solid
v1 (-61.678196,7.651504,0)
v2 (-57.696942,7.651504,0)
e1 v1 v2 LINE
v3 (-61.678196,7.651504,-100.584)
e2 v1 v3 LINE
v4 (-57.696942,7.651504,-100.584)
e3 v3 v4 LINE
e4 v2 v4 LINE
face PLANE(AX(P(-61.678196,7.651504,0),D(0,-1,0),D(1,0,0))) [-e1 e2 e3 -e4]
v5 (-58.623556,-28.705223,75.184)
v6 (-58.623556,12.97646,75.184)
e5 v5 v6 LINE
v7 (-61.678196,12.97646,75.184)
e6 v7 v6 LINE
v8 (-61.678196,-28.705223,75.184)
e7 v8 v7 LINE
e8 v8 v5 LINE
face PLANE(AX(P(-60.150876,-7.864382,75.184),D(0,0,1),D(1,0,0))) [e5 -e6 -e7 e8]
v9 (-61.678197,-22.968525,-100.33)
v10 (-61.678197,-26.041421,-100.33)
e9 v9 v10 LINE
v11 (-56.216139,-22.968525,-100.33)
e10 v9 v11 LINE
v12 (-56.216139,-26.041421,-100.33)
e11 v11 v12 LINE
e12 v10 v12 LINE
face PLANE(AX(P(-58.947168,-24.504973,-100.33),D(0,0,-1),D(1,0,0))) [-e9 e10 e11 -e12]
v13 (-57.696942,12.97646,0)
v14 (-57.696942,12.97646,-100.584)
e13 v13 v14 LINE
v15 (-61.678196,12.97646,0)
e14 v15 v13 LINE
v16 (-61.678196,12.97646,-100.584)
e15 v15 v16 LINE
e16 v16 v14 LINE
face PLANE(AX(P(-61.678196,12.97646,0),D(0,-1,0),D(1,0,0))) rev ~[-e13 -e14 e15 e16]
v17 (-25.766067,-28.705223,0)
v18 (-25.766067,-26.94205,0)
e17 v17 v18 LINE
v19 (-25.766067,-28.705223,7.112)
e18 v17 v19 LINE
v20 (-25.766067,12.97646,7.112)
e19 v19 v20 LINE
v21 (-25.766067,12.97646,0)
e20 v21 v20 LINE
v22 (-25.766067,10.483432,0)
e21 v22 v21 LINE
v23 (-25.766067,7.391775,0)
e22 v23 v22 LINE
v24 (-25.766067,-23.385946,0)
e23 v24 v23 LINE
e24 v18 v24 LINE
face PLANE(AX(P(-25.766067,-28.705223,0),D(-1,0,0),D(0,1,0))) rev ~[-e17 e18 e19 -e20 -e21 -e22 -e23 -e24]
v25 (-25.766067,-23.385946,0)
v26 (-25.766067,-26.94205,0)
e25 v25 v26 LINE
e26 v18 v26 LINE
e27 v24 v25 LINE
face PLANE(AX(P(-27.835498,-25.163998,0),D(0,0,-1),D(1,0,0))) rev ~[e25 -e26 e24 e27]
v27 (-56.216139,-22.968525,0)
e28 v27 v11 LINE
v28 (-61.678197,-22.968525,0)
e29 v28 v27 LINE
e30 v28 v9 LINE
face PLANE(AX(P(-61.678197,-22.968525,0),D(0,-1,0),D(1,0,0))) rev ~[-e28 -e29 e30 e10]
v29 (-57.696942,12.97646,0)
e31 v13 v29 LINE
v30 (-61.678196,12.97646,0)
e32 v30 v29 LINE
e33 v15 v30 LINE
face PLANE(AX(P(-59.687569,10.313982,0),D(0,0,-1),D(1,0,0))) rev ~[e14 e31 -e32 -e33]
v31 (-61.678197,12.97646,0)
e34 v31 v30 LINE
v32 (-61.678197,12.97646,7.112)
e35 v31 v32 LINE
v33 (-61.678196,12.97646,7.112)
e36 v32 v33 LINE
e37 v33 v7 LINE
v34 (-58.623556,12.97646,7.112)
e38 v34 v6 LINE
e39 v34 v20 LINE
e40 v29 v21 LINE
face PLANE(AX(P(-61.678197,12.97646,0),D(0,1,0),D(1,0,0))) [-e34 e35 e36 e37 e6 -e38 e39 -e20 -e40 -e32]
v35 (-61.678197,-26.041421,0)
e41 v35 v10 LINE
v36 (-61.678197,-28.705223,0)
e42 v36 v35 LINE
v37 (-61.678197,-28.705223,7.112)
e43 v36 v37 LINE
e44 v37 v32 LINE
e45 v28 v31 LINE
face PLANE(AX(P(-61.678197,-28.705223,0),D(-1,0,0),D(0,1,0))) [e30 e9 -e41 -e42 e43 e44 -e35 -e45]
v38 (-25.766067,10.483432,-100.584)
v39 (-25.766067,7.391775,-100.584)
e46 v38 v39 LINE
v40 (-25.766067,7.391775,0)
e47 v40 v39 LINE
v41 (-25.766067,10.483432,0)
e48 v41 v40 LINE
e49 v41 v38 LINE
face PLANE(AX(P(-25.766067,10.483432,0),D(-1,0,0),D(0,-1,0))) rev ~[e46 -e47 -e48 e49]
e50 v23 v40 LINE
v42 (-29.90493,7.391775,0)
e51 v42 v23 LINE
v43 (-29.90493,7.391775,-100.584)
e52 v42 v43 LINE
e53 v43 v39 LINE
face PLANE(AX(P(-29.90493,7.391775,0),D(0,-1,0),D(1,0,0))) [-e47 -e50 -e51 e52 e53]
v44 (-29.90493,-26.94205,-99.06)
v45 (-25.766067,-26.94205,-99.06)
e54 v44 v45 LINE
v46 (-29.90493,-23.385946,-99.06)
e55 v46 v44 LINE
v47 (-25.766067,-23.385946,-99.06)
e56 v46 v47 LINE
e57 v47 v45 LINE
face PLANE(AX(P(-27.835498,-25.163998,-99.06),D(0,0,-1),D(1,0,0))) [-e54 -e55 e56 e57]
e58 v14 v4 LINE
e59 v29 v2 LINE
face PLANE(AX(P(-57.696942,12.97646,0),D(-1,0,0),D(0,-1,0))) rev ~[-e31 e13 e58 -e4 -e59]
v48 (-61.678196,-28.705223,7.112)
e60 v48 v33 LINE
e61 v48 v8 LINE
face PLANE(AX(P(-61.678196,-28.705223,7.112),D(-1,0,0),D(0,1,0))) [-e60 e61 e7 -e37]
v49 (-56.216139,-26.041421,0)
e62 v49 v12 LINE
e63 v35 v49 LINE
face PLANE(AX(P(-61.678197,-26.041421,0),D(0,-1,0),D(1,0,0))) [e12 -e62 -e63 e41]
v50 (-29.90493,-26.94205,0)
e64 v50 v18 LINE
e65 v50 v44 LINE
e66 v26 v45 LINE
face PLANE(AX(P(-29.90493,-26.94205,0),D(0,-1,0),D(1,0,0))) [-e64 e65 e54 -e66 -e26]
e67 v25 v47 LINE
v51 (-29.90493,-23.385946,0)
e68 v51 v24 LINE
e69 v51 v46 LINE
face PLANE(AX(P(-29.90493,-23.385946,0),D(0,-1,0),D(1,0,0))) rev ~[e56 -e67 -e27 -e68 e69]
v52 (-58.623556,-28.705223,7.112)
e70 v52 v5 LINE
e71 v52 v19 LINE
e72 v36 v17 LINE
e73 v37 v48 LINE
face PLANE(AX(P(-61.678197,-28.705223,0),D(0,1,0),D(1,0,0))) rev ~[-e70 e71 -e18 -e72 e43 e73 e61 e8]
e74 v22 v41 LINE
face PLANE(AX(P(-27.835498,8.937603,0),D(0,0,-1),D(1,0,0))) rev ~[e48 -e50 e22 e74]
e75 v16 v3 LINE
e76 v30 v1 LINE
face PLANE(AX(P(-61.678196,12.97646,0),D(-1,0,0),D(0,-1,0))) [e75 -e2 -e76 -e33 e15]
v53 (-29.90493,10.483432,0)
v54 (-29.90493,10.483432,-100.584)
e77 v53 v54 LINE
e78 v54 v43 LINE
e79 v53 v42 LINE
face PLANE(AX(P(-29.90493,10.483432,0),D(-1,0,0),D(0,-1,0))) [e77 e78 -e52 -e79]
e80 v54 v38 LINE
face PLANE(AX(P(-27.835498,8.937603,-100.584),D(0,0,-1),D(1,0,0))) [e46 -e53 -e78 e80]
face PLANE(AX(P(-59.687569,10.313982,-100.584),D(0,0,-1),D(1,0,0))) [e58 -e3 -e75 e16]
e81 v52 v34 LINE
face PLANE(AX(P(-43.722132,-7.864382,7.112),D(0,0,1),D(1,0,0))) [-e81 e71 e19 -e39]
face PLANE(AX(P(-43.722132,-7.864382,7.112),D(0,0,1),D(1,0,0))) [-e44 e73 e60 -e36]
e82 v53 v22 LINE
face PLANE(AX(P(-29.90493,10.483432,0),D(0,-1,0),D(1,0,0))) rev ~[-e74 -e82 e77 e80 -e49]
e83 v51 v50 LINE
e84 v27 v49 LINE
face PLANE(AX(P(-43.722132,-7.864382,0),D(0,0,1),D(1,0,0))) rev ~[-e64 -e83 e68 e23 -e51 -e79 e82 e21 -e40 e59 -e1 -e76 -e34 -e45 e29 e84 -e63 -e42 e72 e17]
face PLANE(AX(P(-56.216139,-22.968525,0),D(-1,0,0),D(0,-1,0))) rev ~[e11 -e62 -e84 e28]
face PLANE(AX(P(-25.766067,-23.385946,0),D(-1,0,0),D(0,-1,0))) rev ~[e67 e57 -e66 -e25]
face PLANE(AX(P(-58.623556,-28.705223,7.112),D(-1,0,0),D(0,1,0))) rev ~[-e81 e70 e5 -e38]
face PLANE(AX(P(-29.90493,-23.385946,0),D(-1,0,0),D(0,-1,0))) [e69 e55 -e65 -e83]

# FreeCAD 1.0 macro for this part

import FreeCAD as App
import Part
import Sketcher

V = App.Vector
Q = App.Units.Quantity

doc = App.newDocument("Part")
body = doc.addObject("PartDesign::Body", "Body")

sketch1 = body.newObject("Sketcher::SketchObject", "Sketch")
sketch1.AttachmentSupport = (doc.getObject("XY_Plane"), [""])
sketch1.MapMode = "FlatFace"
sketch1.addGeometry(Part.LineSegment(V(-62, 13, 0), V(-62, -29, 0)), False)
sketch1.addGeometry(Part.LineSegment(V(-62, -29, 0), V(-26, -29, 0)), False)
sketch1.addGeometry(Part.LineSegment(V(-26, -29, 0), V(-26, 13, 0)), False)
sketch1.addGeometry(Part.LineSegment(V(-26, 13, 0), V(-62, 13, 0)), False)
sketch1.addConstraint(Sketcher.Constraint("Coincident", 0, 2, 1, 1))
sketch1.addConstraint(Sketcher.Constraint("Coincident", 1, 2, 2, 1))
sketch1.addConstraint(Sketcher.Constraint("Coincident", 2, 2, 3, 1))
sketch1.addConstraint(Sketcher.Constraint("Coincident", 3, 2, 0, 1))
sketch1.addConstraint(Sketcher.Constraint("Vertical", 0))
sketch1.addConstraint(Sketcher.Constraint("Horizontal", 1))
sketch1.addConstraint(Sketcher.Constraint("Vertical", 2))
sketch1.addConstraint(Sketcher.Constraint("Horizontal", 3))
sketch1.addConstraint(Sketcher.Constraint("DistanceX", 1, 1, 1, 2, Q("35.91213 mm")))
sketch1.addConstraint(Sketcher.Constraint("DistanceY", 0, 2, 0, 1, Q("41.681683 mm")))
sketch1.addConstraint(Sketcher.Constraint("DistanceY", -1, 1, 2, 2, Q("12.97646 mm")))
sketch1.addConstraint(Sketcher.Constraint("DistanceX", 0, 2, -1, 1, Q("61.678197 mm")))
pad1 = body.newObject("PartDesign::Pad", "Pad")
pad1.Profile = sketch1
pad1.Length = Q("0.28 in")

sketch2 = body.newObject("Sketcher::SketchObject", "Sketch001")
sketch2.AttachmentSupport = (doc.getObject("XY_Plane"), [""])
sketch2.MapMode = "FlatFace"
sketch2.addGeometry(Part.LineSegment(V(-29.9, -26.9, 0), V(-29.9, -23.4, 0)), False)
sketch2.addGeometry(Part.LineSegment(V(-29.9, -23.4, 0), V(-25.8, -23.4, 0)), False)
sketch2.addGeometry(Part.LineSegment(V(-25.8, -23.4, 0), V(-25.8, -26.9, 0)), False)
sketch2.addGeometry(Part.LineSegment(V(-25.8, -26.9, 0), V(-29.9, -26.9, 0)), False)
sketch2.addConstraint(Sketcher.Constraint("Coincident", 0, 2, 1, 1))
sketch2.addConstraint(Sketcher.Constraint("Coincident", 1, 2, 2, 1))
sketch2.addConstraint(Sketcher.Constraint("Coincident", 2, 2, 3, 1))
sketch2.addConstraint(Sketcher.Constraint("Coincident", 3, 2, 0, 1))
sketch2.addConstraint(Sketcher.Constraint("Vertical", 0))
sketch2.addConstraint(Sketcher.Constraint("Horizontal", 1))
sketch2.addConstraint(Sketcher.Constraint("Vertical", 2))
sketch2.addConstraint(Sketcher.Constraint("Horizontal", 3))
sketch2.addConstraint(Sketcher.Constraint("DistanceX", 1, 1, 1, 2, Q("4.138863 mm")))
sketch2.addConstraint(Sketcher.Constraint("DistanceY", 0, 1, 0, 2, Q("3.556104 mm")))
sketch2.addConstraint(Sketcher.Constraint("DistanceX", 0, 2, -1, 1, Q("29.90493 mm")))
sketch2.addConstraint(Sketcher.Constraint("DistanceY", 2, 2, -1, 1, Q("26.94205 mm")))
pad2 = body.newObject("PartDesign::Pad", "Pad001")
pad2.Profile = sketch2
pad2.Length = Q("3.9 in")
pad2.Reversed = True

sketch3 = body.newObject("Sketcher::SketchObject", "Sketch002")
sketch3.AttachmentSupport = (doc.getObject("XY_Plane"), [""])
sketch3.MapMode = "FlatFace"
sketch3.addGeometry(Part.LineSegment(V(-29.9, 7.4, 0), V(-29.9, 10.5, 0)), False)
sketch3.addGeometry(Part.LineSegment(V(-29.9, 10.5, 0), V(-25.8, 10.5, 0)), False)
sketch3.addGeometry(Part.LineSegment(V(-25.8, 10.5, 0), V(-25.8, 7.4, 0)), False)
sketch3.addGeometry(Part.LineSegment(V(-25.8, 7.4, 0), V(-29.9, 7.4, 0)), False)
sketch3.addConstraint(Sketcher.Constraint("Coincident", 0, 2, 1, 1))
sketch3.addConstraint(Sketcher.Constraint("Coincident", 1, 2, 2, 1))
sketch3.addConstraint(Sketcher.Constraint("Coincident", 2, 2, 3, 1))
sketch3.addConstraint(Sketcher.Constraint("Coincident", 3, 2, 0, 1))
sketch3.addConstraint(Sketcher.Constraint("Vertical", 0))
sketch3.addConstraint(Sketcher.Constraint("Horizontal", 1))
sketch3.addConstraint(Sketcher.Constraint("Vertical", 2))
sketch3.addConstraint(Sketcher.Constraint("Horizontal", 3))
sketch3.addConstraint(Sketcher.Constraint("DistanceX", 1, 1, 1, 2, Q("4.138863 mm")))
sketch3.addConstraint(Sketcher.Constraint("DistanceY", 0, 1, 0, 2, Q("3.091657 mm")))
sketch3.addConstraint(Sketcher.Constraint("DistanceX", 0, 2, -1, 1, Q("29.90493 mm")))
sketch3.addConstraint(Sketcher.Constraint("DistanceY", -1, 1, 0, 2, Q("10.483432 mm")))
pad3 = body.newObject("PartDesign::Pad", "Pad002")
pad3.Profile = sketch3
pad3.Length = Q("3.96 in")
pad3.Reversed = True

sketch4 = body.newObject("Sketcher::SketchObject", "Sketch003")
sketch4.AttachmentSupport = (doc.getObject("XY_Plane"), [""])
sketch4.MapMode = "FlatFace"
sketch4.addGeometry(Part.LineSegment(V(-61.7, 7.7, 0), V(-61.7, 13, 0)), False)
sketch4.addGeometry(Part.LineSegment(V(-61.7, 13, 0), V(-57.7, 13, 0)), False)
sketch4.addGeometry(Part.LineSegment(V(-57.7, 13, 0), V(-57.7, 7.7, 0)), False)
sketch4.addGeometry(Part.LineSegment(V(-57.7, 7.7, 0), V(-61.7, 7.7, 0)), False)
sketch4.addConstraint(Sketcher.Constraint("Coincident", 0, 2, 1, 1))
sketch4.addConstraint(Sketcher.Constraint("Coincident", 1, 2, 2, 1))
sketch4.addConstraint(Sketcher.Constraint("Coincident", 2, 2, 3, 1))
sketch4.addConstraint(Sketcher.Constraint("Coincident", 3, 2, 0, 1))
sketch4.addConstraint(Sketcher.Constraint("Vertical", 0))
sketch4.addConstraint(Sketcher.Constraint("Horizontal", 1))
sketch4.addConstraint(Sketcher.Constraint("Vertical", 2))
sketch4.addConstraint(Sketcher.Constraint("Horizontal", 3))
sketch4.addConstraint(Sketcher.Constraint("DistanceX", 1, 1, 1, 2, Q("3.981255 mm")))
sketch4.addConstraint(Sketcher.Constraint("DistanceY", 0, 1, 0, 2, Q("5.324956 mm")))
sketch4.addConstraint(Sketcher.Constraint("DistanceY", -1, 1, 0, 2, Q("12.97646 mm")))
sketch4.addConstraint(Sketcher.Constraint("DistanceX", 1, 2, -1, 1, Q("57.696942 mm")))
pad4 = body.newObject("PartDesign::Pad", "Pad003")
pad4.Profile = sketch4
pad4.Length = Q("3.96 in")
pad4.Reversed = True

sketch5 = body.newObject("Sketcher::SketchObject", "Sketch004")
sketch5.AttachmentSupport = (doc.getObject("XY_Plane"), [""])
sketch5.MapMode = "FlatFace"
sketch5.addGeometry(Part.LineSegment(V(-61.7, -26, 0), V(-61.7, -23, 0)), False)
sketch5.addGeometry(Part.LineSegment(V(-61.7, -23, 0), V(-56.2, -23, 0)), False)
sketch5.addGeometry(Part.LineSegment(V(-56.2, -23, 0), V(-56.2, -26, 0)), False)
sketch5.addGeometry(Part.LineSegment(V(-56.2, -26, 0), V(-61.7, -26, 0)), False)
sketch5.addConstraint(Sketcher.Constraint("Coincident", 0, 2, 1, 1))
sketch5.addConstraint(Sketcher.Constraint("Coincident", 1, 2, 2, 1))
sketch5.addConstraint(Sketcher.Constraint("Coincident", 2, 2, 3, 1))
sketch5.addConstraint(Sketcher.Constraint("Coincident", 3, 2, 0, 1))
sketch5.addConstraint(Sketcher.Constraint("Vertical", 0))
sketch5.addConstraint(Sketcher.Constraint("Horizontal", 1))
sketch5.addConstraint(Sketcher.Constraint("Vertical", 2))
sketch5.addConstraint(Sketcher.Constraint("Horizontal", 3))
sketch5.addConstraint(Sketcher.Constraint("DistanceX", 1, 1, 1, 2, Q("5.462058 mm")))
sketch5.addConstraint(Sketcher.Constraint("DistanceY", 0, 1, 0, 2, Q("3.072897 mm")))
sketch5.addConstraint(Sketcher.Constraint("DistanceX", 1, 2, -1, 1, Q("56.216139 mm")))
sketch5.addConstraint(Sketcher.Constraint("DistanceY", 2, 2, -1, 1, Q("26.041421 mm")))
pad5 = body.newObject("PartDesign::Pad", "Pad004")
pad5.Profile = sketch5
pad5.Length = Q("3.95 in")
pad5.Reversed = True

sketch6 = body.newObject("Sketcher::SketchObject", "Sketch005")
sketch6.AttachmentSupport = (doc.getObject("XY_Plane"), [""])
sketch6.MapMode = "FlatFace"
sketch6.AttachmentOffset = App.Placement(V(0, 0, 0.28 * 25.4), App.Rotation())
sketch6.addGeometry(Part.LineSegment(V(-61.7, 13, 0), V(-61.7, -28.7, 0)), False)
sketch6.addGeometry(Part.LineSegment(V(-61.7, -28.7, 0), V(-58.6, -28.7, 0)), False)
sketch6.addGeometry(Part.LineSegment(V(-58.6, -28.7, 0), V(-58.6, 13, 0)), False)
sketch6.addGeometry(Part.LineSegment(V(-58.6, 13, 0), V(-61.7, 13, 0)), False)
sketch6.addConstraint(Sketcher.Constraint("Coincident", 0, 2, 1, 1))
sketch6.addConstraint(Sketcher.Constraint("Coincident", 1, 2, 2, 1))
sketch6.addConstraint(Sketcher.Constraint("Coincident", 2, 2, 3, 1))
sketch6.addConstraint(Sketcher.Constraint("Coincident", 3, 2, 0, 1))
sketch6.addConstraint(Sketcher.Constraint("Vertical", 0))
sketch6.addConstraint(Sketcher.Constraint("Horizontal", 1))
sketch6.addConstraint(Sketcher.Constraint("Vertical", 2))
sketch6.addConstraint(Sketcher.Constraint("Horizontal", 3))
sketch6.addConstraint(Sketcher.Constraint("DistanceX", 1, 1, 1, 2, Q("3.054641 mm")))
sketch6.addConstraint(Sketcher.Constraint("DistanceY", 0, 2, 0, 1, Q("41.681683 mm")))
sketch6.addConstraint(Sketcher.Constraint("DistanceY", -1, 1, 2, 2, Q("12.97646 mm")))
sketch6.addConstraint(Sketcher.Constraint("DistanceX", 0, 2, -1, 1, Q("61.678196 mm")))
pad6 = body.newObject("PartDesign::Pad", "Pad005")
pad6.Profile = sketch6
pad6.Length = Q("2.68 in")

doc.recompute()
